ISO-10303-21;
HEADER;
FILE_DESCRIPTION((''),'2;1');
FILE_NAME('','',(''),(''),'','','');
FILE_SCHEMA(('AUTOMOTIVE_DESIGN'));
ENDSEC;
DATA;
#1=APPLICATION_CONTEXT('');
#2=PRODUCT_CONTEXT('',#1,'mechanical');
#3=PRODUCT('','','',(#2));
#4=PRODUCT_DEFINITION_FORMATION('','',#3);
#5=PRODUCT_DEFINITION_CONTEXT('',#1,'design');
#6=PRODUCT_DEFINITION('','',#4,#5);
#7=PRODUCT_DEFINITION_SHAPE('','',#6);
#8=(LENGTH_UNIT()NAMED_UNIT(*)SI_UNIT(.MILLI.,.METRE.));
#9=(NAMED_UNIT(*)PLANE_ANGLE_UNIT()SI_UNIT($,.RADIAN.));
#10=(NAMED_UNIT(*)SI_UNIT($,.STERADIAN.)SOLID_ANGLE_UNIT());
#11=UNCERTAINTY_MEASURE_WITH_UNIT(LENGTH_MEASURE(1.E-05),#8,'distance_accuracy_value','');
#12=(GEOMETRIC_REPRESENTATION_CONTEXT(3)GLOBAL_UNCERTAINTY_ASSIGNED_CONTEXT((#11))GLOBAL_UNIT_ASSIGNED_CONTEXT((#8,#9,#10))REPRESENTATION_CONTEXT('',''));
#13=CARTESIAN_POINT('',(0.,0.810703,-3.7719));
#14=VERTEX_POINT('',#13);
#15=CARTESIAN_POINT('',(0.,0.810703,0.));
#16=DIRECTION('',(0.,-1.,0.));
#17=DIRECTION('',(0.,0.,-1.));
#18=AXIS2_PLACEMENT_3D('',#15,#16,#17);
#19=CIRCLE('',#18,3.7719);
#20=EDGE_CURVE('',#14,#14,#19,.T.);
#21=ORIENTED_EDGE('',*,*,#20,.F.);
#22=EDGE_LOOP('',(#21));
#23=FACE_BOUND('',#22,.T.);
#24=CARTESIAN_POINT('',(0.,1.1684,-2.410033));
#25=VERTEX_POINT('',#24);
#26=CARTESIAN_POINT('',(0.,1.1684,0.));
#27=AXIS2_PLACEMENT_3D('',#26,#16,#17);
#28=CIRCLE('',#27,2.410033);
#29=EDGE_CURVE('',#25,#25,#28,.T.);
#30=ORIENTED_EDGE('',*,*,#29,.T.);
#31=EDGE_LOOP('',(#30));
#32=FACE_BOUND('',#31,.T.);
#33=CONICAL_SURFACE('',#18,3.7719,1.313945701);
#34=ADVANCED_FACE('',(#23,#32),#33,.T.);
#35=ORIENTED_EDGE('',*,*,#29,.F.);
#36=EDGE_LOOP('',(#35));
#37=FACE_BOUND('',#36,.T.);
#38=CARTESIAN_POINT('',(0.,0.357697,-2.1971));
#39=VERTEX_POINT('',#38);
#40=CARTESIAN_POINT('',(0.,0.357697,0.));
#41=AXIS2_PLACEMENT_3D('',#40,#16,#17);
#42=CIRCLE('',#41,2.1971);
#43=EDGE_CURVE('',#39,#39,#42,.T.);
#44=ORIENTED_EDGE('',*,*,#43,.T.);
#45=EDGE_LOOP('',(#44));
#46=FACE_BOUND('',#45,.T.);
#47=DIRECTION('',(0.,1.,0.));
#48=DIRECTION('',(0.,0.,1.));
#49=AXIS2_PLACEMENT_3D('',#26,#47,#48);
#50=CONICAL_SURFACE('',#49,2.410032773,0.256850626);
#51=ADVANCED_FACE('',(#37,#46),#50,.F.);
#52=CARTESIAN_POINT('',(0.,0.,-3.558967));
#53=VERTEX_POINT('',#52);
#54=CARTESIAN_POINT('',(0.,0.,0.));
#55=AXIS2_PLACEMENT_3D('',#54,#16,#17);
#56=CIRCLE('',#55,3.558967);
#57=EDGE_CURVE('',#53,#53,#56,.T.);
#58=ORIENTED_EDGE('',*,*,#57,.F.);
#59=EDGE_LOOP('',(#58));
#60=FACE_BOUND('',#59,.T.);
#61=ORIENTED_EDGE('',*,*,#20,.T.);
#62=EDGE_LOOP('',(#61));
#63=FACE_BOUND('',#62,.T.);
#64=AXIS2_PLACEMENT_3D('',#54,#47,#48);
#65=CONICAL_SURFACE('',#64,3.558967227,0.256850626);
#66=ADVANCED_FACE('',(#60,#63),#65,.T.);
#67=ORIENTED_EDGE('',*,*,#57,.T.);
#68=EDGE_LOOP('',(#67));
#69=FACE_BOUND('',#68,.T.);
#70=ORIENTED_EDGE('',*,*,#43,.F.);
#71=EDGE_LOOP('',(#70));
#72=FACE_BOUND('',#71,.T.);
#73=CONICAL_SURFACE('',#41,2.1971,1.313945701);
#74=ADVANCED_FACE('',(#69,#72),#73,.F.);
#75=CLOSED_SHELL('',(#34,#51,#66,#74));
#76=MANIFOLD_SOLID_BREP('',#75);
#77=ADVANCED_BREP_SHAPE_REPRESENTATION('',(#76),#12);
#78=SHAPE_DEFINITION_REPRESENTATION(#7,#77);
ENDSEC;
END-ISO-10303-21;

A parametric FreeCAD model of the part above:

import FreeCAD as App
import Part
import Sketcher

V = App.Vector
Q = App.Units.Quantity


def add_polygon(sketch, points):
    """Adds a closed chain of lines whose ends are joined by coincident constraints."""
    first, n = sketch.GeometryCount, len(points)
    for a, b in zip(points, points[1:] + points[:1]):
        sketch.addGeometry(Part.LineSegment(App.Vector(*a, 0), App.Vector(*b, 0)), False)
    for i in range(n):
        sketch.addConstraint(Sketcher.Constraint("Coincident", first + i, 2, first + (i + 1) % n, 1))

doc = App.newDocument("Part")
body = doc.addObject("PartDesign::Body", "Body")

# Sketch on XY plane
sketch1 = body.newObject("Sketcher::SketchObject", "Sketch")
sketch1.AttachmentSupport = (doc.getObject("XY_Plane"), [""])
sketch1.MapMode = "FlatFace"
add_polygon(sketch1, [(2.1971, 0.357697), (3.558967, 0), (3.7719, 0.810703), (2.410033, 1.1684)])  # lines 0-3
sketch1.addConstraint([
    Sketcher.Constraint("PointOnObject", 0, 2, -1),
    Sketcher.Constraint("Perpendicular", 0, 1),
    Sketcher.Constraint("Perpendicular", 1, 2),
    Sketcher.Constraint("Perpendicular", 2, 3),
    Sketcher.Constraint("Distance", 1, Q("0.033 in")),
    Sketcher.Constraint("DistanceY", -1, 1, 2, 2, Q("0.046 in")),
    Sketcher.Constraint("DistanceX", 3, 2, 1, 2, Q("0.062 in")),
    Sketcher.Constraint("DistanceX", -1, 1, 1, 2, Q("0.1485 in")),
])
revolution = body.newObject("PartDesign::Revolution", "Revolution")
revolution.Profile = sketch1
revolution.ReferenceAxis = (sketch1, ["V_Axis"])
revolution.Angle = 360

doc.recompute()
